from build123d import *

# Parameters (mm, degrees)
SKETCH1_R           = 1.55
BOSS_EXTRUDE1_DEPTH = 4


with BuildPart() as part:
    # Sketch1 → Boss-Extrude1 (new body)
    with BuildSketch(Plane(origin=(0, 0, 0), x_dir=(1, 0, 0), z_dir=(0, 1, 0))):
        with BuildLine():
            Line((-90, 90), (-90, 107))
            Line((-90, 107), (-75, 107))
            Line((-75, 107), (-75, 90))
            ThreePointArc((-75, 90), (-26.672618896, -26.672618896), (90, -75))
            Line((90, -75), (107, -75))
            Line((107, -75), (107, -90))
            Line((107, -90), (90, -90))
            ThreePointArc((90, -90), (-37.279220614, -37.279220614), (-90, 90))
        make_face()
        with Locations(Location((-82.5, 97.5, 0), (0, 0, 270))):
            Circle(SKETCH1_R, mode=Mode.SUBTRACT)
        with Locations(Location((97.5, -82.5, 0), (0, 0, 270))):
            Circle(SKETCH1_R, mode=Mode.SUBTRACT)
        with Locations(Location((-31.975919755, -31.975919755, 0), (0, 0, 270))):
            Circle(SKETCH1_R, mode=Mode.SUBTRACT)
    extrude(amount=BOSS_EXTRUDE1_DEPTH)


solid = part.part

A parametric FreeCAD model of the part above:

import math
import FreeCAD as App
import Part
import Sketcher

V = App.Vector

doc = App.newDocument("Part")
body = doc.addObject("PartDesign::Body", "Body")

sketch1 = body.newObject("Sketcher::SketchObject", "Sketch")
sketch1.AttachmentSupport = (doc.getObject("XZ_Plane"), [""])
sketch1.MapMode = "FlatFace"
sketch1.addGeometry([
    Part.LineSegment(V(-90, -107, 0), V(-90, -90, 0)),
    Part.ArcOfCircle(Part.Circle(V(90, -90, 0), V(0, 0, 1), 180), math.radians(90), math.radians(180)),
    Part.LineSegment(V(90, 90, 0), V(107, 90, 0)),
    Part.LineSegment(V(107, 90, 0), V(107, 75, 0)),
    Part.LineSegment(V(107, 75, 0), V(90, 75, 0)),
    Part.ArcOfCircle(Part.Circle(V(90, -90, 0), V(0, 0, 1), 165), math.radians(90), math.radians(180)),
    Part.LineSegment(V(-75, -90, 0), V(-75, -107, 0)),
    Part.LineSegment(V(-75, -107, 0), V(-90, -107, 0)),
    Part.Circle(V(97.5, 82.5, 0), V(0, 0, 1), 1.6),
    Part.Circle(V(-32, 32, 0), V(0, 0, 1), 1.6),
    Part.Circle(V(-82.5, -97.5, 0), V(0, 0, 1), 1.6),
], False)
sketch1.addConstraint([
    Sketcher.Constraint("Tangent", 0, 2, 1, 2),
    Sketcher.Constraint("Tangent", 1, 1, 2, 1),
    Sketcher.Constraint("Coincident", 2, 2, 3, 1),
    Sketcher.Constraint("Coincident", 3, 2, 4, 1),
    Sketcher.Constraint("Tangent", 4, 2, 5, 1),
    Sketcher.Constraint("Tangent", 5, 2, 6, 1),
    Sketcher.Constraint("Coincident", 6, 2, 7, 1),
    Sketcher.Constraint("Coincident", 7, 2, 0, 1),
    Sketcher.Constraint("Vertical", 0),
    Sketcher.Constraint("Horizontal", 2),
    Sketcher.Constraint("Vertical", 3),
    Sketcher.Constraint("Horizontal", 4),
    Sketcher.Constraint("Vertical", 6),
    Sketcher.Constraint("Horizontal", 7),
    Sketcher.Constraint("Coincident", 5, 3, 1, 3),
    Sketcher.Constraint("Equal", 8, 9),
    Sketcher.Constraint("Equal", 9, 10),
    Sketcher.Constraint("Symmetric", 0, 2, 1, 1, -1, 1),
    Sketcher.Constraint("Equal", 4, 0),
    Sketcher.Constraint("Radius", 1, 180.0),
    Sketcher.Constraint("Radius", 5, 165.0),
    Sketcher.Constraint("Diameter", 8, 3.1),
    Sketcher.Constraint("DistanceX", 2, 1, 2, 2, 17.0),
    Sketcher.Constraint("DistanceX", 10, 3, 8, 3, 180.0),
    Sketcher.Constraint("DistanceY", 10, 3, 8, 3, 180.0),
    Sketcher.Constraint("DistanceX", -1, 1, 8, 3, 97.5),
    Sketcher.Constraint("DistanceY", -1, 1, 8, 3, 82.5),
    Sketcher.Constraint("DistanceX", 9, 3, -1, 1, 31.97592),
    Sketcher.Constraint("DistanceY", -1, 1, 9, 3, 31.97592),
])
pad1 = body.newObject("PartDesign::Pad", "Pad")
pad1.Profile = sketch1
pad1.Length = 4
pad1.Reversed = True

doc.recompute()
